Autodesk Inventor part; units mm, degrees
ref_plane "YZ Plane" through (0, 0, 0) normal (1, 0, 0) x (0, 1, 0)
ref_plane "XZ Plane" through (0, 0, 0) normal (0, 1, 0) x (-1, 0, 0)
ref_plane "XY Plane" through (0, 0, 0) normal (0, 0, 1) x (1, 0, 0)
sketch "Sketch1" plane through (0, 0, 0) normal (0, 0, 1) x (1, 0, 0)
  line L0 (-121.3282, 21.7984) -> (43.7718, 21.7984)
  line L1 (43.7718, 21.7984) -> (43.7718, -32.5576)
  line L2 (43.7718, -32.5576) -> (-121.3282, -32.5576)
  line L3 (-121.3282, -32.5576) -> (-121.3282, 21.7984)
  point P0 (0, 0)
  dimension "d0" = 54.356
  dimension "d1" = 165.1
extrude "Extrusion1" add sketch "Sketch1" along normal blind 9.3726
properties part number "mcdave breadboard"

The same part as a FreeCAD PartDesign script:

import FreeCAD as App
import Part
import Sketcher
from FreeCAD import Vector
Q = App.Units.Quantity

doc = App.newDocument("Part")
params = doc.addObject("Spreadsheet::Sheet", "Params")
for row, (alias, value) in enumerate([
    ("sketch1_width", "6.5 in"),
    ("sketch1_height", "2.14 in"),
    ("pad1_length", "0.369 in"),
], start=1):
    params.set(f"A{row}", alias)
    params.set(f"B{row}", "=" + value)
    params.setAlias(f"B{row}", alias)

body = doc.addObject("PartDesign::Body", "Body")

sketch1 = doc.addObject("Sketcher::SketchObject", "Sketch")
body.addObject(sketch1)
sketch1.AttachmentSupport = (doc.XY_Plane, [""])
sketch1.MapMode = "FlatFace"
sketch1.addGeometry(Part.LineSegment(Vector(43.7718, 21.7984, 0), Vector(-121.3282, 21.7984, 0)), False)
sketch1.addGeometry(Part.LineSegment(Vector(-121.3282, 21.7984, 0), Vector(-121.3282, -32.5576, 0)), False)
sketch1.addGeometry(Part.LineSegment(Vector(-121.3282, -32.5576, 0), Vector(43.7718, -32.5576, 0)), False)
sketch1.addGeometry(Part.LineSegment(Vector(43.7718, -32.5576, 0), Vector(43.7718, 21.7984, 0)), False)
sketch1.addConstraint(Sketcher.Constraint("Coincident", 0, 2, 1, 1))
sketch1.addConstraint(Sketcher.Constraint("Coincident", 1, 2, 2, 1))
sketch1.addConstraint(Sketcher.Constraint("Coincident", 2, 2, 3, 1))
sketch1.addConstraint(Sketcher.Constraint("Coincident", 3, 2, 0, 1))
sketch1.addConstraint(Sketcher.Constraint("Horizontal", 0))
sketch1.addConstraint(Sketcher.Constraint("Vertical", 1))
sketch1.addConstraint(Sketcher.Constraint("Horizontal", 2))
sketch1.addConstraint(Sketcher.Constraint("Vertical", 3))
sketch1.addConstraint(Sketcher.Constraint("DistanceX", 0, 2, 0, 1, Q("6.5 in")))
sketch1.addConstraint(Sketcher.Constraint("DistanceY", 1, 2, 1, 1, Q("2.14 in")))
sketch1.addConstraint(Sketcher.Constraint("DistanceX", 0, 2, -1, 1, Q("4.7767 in")))
sketch1.addConstraint(Sketcher.Constraint("DistanceY", -1, 1, 0, 2, Q("0.8582 in")))
sketch1.setExpression("Constraints[8]", "Params.sketch1_width")
sketch1.setExpression("Constraints[9]", "Params.sketch1_height")
pad1 = doc.addObject("PartDesign::Pad", "Pad")
body.addObject(pad1)
pad1.Profile = sketch1
pad1.setExpression("Length", "Params.pad1_length")

doc.recompute()
